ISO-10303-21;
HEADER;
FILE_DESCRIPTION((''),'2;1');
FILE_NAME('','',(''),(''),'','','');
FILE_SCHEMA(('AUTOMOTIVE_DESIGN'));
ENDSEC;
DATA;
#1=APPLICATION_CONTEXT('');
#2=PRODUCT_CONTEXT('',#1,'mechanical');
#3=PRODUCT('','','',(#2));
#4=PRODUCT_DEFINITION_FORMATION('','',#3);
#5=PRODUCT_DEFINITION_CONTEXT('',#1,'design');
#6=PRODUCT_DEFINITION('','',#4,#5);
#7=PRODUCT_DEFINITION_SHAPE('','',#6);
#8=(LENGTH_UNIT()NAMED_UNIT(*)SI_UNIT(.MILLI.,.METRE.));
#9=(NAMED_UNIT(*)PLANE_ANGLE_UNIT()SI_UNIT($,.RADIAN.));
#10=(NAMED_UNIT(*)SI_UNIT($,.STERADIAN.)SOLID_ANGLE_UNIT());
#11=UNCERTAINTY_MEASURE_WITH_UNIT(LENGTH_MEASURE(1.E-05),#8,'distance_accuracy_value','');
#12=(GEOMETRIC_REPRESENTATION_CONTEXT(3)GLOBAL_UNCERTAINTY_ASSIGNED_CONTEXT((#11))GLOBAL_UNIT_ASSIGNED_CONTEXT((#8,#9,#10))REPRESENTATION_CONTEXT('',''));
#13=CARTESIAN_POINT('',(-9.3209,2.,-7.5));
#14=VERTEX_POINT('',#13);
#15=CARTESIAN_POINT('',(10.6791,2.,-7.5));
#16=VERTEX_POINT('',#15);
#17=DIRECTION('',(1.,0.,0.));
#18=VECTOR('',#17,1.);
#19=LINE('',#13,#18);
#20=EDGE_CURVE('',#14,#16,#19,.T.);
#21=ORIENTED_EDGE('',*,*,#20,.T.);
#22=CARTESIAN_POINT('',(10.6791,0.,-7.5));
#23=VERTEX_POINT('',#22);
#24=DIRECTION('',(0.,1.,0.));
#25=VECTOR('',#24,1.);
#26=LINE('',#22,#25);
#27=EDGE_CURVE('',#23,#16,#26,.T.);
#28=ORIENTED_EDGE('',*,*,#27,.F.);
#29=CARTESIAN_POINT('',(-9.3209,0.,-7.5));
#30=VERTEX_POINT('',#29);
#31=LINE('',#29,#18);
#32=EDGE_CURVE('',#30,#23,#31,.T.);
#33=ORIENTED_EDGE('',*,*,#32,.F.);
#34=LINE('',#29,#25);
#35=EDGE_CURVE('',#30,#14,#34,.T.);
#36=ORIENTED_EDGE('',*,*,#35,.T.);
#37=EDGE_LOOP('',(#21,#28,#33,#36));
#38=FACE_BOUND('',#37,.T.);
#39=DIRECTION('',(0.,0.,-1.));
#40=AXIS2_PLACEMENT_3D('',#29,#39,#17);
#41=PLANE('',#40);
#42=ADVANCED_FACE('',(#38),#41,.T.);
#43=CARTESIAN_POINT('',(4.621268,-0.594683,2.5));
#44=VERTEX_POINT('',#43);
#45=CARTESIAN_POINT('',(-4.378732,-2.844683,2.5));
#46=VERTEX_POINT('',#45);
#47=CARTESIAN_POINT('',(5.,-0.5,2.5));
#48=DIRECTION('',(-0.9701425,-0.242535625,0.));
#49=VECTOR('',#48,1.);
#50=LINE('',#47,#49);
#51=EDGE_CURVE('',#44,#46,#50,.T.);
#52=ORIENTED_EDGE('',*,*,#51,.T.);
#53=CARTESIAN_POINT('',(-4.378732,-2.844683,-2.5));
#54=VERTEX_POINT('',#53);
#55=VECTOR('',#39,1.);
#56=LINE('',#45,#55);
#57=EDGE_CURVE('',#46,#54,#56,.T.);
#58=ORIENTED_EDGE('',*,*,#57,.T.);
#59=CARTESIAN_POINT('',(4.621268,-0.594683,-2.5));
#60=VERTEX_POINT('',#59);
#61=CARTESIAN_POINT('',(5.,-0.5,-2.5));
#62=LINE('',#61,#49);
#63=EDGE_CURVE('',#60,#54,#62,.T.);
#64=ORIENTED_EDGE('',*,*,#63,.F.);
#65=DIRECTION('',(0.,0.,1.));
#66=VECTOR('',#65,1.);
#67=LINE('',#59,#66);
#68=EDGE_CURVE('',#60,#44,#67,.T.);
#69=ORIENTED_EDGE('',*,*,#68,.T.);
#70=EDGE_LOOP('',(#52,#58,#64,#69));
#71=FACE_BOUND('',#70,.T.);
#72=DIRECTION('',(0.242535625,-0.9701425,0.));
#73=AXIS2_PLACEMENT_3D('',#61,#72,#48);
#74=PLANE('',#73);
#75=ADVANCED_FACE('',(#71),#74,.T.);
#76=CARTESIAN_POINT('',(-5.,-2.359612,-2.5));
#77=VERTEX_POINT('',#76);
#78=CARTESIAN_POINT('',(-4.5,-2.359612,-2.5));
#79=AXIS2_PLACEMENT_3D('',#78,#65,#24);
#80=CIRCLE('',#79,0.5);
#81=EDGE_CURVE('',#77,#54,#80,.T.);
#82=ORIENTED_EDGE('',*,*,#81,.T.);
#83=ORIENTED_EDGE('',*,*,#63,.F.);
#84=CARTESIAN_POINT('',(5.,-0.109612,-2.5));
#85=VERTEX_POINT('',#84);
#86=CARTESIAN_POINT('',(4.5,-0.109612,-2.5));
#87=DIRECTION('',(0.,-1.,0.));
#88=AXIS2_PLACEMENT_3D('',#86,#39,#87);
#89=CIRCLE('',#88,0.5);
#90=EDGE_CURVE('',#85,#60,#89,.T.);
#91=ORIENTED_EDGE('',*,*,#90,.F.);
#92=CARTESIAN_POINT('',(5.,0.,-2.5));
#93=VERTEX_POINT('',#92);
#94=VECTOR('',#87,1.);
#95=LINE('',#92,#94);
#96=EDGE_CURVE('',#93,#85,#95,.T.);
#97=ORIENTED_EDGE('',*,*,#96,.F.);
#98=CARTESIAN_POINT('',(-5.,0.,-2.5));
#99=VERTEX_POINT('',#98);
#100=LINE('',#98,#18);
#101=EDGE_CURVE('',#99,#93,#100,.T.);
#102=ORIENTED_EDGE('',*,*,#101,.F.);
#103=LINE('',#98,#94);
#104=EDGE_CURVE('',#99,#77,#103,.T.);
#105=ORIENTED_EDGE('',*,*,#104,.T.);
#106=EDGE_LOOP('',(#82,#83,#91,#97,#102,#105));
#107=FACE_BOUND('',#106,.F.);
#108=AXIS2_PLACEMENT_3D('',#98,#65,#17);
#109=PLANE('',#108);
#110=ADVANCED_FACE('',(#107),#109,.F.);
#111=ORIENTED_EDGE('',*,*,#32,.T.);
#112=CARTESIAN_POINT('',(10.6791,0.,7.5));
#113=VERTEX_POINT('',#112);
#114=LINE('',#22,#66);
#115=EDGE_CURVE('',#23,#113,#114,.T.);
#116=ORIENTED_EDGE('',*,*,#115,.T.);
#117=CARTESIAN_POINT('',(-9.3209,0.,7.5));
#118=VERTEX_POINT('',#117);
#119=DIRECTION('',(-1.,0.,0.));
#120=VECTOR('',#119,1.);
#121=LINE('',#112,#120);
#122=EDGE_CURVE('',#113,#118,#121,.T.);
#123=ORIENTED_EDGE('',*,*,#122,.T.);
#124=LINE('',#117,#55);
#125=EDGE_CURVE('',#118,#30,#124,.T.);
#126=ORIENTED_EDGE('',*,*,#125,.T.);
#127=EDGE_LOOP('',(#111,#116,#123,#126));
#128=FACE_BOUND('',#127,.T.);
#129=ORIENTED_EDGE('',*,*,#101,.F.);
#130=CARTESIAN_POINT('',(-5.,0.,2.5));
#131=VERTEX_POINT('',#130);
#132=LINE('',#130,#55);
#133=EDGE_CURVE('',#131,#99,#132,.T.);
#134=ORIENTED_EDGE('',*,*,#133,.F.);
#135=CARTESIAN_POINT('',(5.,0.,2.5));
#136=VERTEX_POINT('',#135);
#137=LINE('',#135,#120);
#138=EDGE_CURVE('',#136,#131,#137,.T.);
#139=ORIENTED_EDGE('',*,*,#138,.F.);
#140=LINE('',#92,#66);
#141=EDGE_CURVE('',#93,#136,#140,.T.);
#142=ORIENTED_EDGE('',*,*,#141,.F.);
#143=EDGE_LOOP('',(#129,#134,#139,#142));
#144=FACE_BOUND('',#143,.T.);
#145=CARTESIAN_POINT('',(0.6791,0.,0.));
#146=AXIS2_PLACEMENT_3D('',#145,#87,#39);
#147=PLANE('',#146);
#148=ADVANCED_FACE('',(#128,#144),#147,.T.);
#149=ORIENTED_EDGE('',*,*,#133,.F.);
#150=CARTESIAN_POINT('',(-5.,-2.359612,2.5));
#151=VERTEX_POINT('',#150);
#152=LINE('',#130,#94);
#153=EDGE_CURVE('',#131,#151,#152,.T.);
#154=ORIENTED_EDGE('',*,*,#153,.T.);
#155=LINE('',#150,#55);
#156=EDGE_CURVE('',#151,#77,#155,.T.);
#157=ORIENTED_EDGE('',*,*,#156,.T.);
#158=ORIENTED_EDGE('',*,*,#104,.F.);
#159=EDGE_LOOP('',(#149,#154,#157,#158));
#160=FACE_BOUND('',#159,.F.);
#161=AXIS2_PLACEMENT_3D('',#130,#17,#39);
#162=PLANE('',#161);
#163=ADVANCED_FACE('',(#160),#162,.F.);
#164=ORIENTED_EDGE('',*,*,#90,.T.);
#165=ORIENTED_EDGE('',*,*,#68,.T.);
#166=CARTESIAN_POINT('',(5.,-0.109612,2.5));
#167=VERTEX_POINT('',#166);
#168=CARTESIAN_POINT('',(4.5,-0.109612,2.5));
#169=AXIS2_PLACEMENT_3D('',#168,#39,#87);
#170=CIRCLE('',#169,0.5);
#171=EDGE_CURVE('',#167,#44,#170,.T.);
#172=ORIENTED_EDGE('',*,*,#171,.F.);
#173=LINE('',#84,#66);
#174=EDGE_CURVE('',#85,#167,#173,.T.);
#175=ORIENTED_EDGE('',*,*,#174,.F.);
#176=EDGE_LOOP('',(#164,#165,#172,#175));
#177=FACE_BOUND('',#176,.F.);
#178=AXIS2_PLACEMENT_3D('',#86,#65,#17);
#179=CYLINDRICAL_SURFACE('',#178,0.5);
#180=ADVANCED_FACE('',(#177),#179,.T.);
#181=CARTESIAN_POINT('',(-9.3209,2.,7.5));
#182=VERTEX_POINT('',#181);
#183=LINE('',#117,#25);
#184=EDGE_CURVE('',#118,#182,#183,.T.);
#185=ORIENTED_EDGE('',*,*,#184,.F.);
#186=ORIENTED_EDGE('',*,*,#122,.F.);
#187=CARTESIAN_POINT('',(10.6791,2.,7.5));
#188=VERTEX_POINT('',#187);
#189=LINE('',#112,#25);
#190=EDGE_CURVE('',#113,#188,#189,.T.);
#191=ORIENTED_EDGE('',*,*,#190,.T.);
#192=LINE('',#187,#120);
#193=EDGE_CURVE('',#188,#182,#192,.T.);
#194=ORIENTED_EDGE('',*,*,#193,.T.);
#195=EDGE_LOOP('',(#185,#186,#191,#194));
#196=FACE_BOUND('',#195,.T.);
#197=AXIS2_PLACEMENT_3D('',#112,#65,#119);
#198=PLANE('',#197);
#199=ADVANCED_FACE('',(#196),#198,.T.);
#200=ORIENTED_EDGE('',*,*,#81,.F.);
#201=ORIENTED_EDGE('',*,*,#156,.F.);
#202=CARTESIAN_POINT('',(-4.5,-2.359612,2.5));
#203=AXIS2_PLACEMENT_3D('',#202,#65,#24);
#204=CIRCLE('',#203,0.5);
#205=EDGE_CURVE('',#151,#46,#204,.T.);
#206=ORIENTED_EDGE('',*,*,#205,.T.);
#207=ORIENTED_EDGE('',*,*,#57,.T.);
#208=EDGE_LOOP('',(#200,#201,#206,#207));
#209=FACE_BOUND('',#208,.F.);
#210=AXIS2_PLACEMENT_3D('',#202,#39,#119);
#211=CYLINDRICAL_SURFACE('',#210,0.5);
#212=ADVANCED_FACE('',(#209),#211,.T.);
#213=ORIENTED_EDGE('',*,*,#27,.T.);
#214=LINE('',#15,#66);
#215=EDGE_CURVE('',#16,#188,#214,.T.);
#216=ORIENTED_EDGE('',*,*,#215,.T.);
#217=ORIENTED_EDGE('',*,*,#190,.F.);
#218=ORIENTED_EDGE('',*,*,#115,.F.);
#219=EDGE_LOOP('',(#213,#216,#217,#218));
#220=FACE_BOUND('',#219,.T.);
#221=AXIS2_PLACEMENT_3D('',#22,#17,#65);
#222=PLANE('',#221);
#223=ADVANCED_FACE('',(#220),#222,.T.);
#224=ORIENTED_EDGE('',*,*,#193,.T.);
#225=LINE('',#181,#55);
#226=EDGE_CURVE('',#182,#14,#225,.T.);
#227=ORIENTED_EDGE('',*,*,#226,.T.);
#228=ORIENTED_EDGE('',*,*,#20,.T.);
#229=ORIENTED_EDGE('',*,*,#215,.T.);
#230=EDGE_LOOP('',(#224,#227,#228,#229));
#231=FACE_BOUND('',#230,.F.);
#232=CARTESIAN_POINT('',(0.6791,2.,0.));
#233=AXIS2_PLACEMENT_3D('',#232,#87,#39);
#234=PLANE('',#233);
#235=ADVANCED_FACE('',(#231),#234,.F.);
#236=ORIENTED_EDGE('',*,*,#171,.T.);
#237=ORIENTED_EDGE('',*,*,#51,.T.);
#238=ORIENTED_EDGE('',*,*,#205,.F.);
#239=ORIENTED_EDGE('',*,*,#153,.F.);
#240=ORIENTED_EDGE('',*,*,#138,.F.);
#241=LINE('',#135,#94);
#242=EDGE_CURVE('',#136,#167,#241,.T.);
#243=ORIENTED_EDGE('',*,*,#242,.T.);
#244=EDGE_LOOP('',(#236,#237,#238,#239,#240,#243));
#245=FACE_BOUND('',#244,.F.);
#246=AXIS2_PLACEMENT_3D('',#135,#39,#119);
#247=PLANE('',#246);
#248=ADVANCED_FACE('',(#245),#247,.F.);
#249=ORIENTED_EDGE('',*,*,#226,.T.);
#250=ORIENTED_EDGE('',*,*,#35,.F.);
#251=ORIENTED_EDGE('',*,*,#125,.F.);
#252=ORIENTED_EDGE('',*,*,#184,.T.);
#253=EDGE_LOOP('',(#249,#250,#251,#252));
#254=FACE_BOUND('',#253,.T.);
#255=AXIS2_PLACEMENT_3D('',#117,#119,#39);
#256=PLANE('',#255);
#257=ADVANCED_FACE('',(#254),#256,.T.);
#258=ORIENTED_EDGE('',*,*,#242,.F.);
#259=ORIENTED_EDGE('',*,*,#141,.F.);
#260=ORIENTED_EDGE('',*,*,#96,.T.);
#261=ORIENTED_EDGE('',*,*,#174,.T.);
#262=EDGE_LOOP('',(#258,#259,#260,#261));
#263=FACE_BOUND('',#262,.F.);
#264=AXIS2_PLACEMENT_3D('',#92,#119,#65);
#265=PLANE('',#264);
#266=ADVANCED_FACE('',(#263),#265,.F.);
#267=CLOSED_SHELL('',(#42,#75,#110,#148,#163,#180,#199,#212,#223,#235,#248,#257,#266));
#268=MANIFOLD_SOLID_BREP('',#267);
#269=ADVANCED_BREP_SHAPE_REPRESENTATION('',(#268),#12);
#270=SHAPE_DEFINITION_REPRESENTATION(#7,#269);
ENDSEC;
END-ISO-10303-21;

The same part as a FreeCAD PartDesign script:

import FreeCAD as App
import Part
import Sketcher

V = App.Vector
Q = App.Units.Quantity


def edges_at(feature, points):
    """Names of the edges that pass closest to the given points."""
    edges = feature.Shape.Edges
    near = lambda p: min(range(len(edges)), key=lambda i: edges[i].distToShape(Part.Vertex(*p))[0])
    return sorted({f"Edge{near(p) + 1}" for p in points})

doc = App.newDocument("Part")
body = doc.addObject("PartDesign::Body", "Body")

# Sketch on XZ plane
sketch1 = doc.addObject("Sketcher::SketchObject", "Sketch")
body.addObject(sketch1)
sketch1.AttachmentSupport = (doc.XZ_Plane, [""])
sketch1.MapMode = "FlatFace"
sketch1.addGeometry(Part.LineSegment(V(11, -8, 0), V(11, 8, 0)), False)
sketch1.addGeometry(Part.LineSegment(V(11, 8, 0), V(-9, 8, 0)), False)
sketch1.addGeometry(Part.LineSegment(V(-9, 8, 0), V(-9, -8, 0)), False)
sketch1.addGeometry(Part.LineSegment(V(-9, -8, 0), V(11, -8, 0)), False)
sketch1.addConstraint(Sketcher.Constraint("Coincident", 0, 2, 1, 1))
sketch1.addConstraint(Sketcher.Constraint("Coincident", 1, 2, 2, 1))
sketch1.addConstraint(Sketcher.Constraint("Coincident", 2, 2, 3, 1))
sketch1.addConstraint(Sketcher.Constraint("Coincident", 3, 2, 0, 1))
sketch1.addConstraint(Sketcher.Constraint("Vertical", 0))
sketch1.addConstraint(Sketcher.Constraint("Horizontal", 1))
sketch1.addConstraint(Sketcher.Constraint("Vertical", 2))
sketch1.addConstraint(Sketcher.Constraint("Horizontal", 3))
sketch1.addConstraint(Sketcher.Constraint("DistanceX", 1, 2, 1, 1, Q("20 mm")))
sketch1.addConstraint(Sketcher.Constraint("DistanceY", 0, 1, 0, 2, Q("15 mm")))
sketch1.addConstraint(Sketcher.Constraint("DistanceY", -1, 1, 0, 2, Q("7.5 mm")))
sketch1.addConstraint(Sketcher.Constraint("DistanceX", -1, 1, 0, 2, Q("10.679 mm")))
pad1 = doc.addObject("PartDesign::Pad", "Pad")
body.addObject(pad1)
pad1.Profile = sketch1
pad1.Length = 2
pad1.Reversed = True

# Sketch on XZ plane
sketch2 = doc.addObject("Sketcher::SketchObject", "Sketch001")
body.addObject(sketch2)
sketch2.AttachmentSupport = (doc.XZ_Plane, [""])
sketch2.MapMode = "FlatFace"
sketch2.addGeometry(Part.LineSegment(V(5, -2, 0), V(5, 2, 0)), False)
sketch2.addGeometry(Part.LineSegment(V(5, 2, 0), V(-5, 2, 0)), False)
sketch2.addGeometry(Part.LineSegment(V(-5, 2, 0), V(-5, -2, 0)), False)
sketch2.addGeometry(Part.LineSegment(V(-5, -2, 0), V(5, -2, 0)), False)
sketch2.addConstraint(Sketcher.Constraint("Coincident", 0, 2, 1, 1))
sketch2.addConstraint(Sketcher.Constraint("Coincident", 1, 2, 2, 1))
sketch2.addConstraint(Sketcher.Constraint("Coincident", 2, 2, 3, 1))
sketch2.addConstraint(Sketcher.Constraint("Coincident", 3, 2, 0, 1))
sketch2.addConstraint(Sketcher.Constraint("Vertical", 0))
sketch2.addConstraint(Sketcher.Constraint("Horizontal", 1))
sketch2.addConstraint(Sketcher.Constraint("Vertical", 2))
sketch2.addConstraint(Sketcher.Constraint("Horizontal", 3))
sketch2.addConstraint(Sketcher.Constraint("Symmetric", 0, 2, 2, 2, -1, 1))
sketch2.addConstraint(Sketcher.Constraint("DistanceX", 1, 2, 1, 1, Q("10 mm")))
sketch2.addConstraint(Sketcher.Constraint("DistanceY", 0, 1, 0, 2, Q("5 mm")))
pad2 = doc.addObject("PartDesign::Pad", "Pad001")
body.addObject(pad2)
pad2.Profile = sketch2
pad2.Length = 3

# Sketch on XY plane
sketch3 = doc.addObject("Sketcher::SketchObject", "Sketch002")
body.addObject(sketch3)
sketch3.AttachmentSupport = (doc.XY_Plane, [""])
sketch3.MapMode = "FlatFace"
sketch3.AttachmentOffset = App.Placement(V(0, 0, -2.5), App.Rotation())
sketch3.addGeometry(Part.LineSegment(V(5, -0.5, 0), V(5, -3, 0)), False)
sketch3.addGeometry(Part.LineSegment(V(5, -3, 0), V(-5, -3, 0)), False)
sketch3.addGeometry(Part.LineSegment(V(-5, -3, 0), V(5, -0.5, 0)), False)
sketch3.addConstraint(Sketcher.Constraint("Coincident", 0, 2, 1, 1))
sketch3.addConstraint(Sketcher.Constraint("Coincident", 1, 2, 2, 1))
sketch3.addConstraint(Sketcher.Constraint("Coincident", 2, 2, 0, 1))
sketch3.addConstraint(Sketcher.Constraint("Vertical", 0))
sketch3.addConstraint(Sketcher.Constraint("Horizontal", 1))
sketch3.addConstraint(Sketcher.Constraint("DistanceX", 1, 2, 1, 1, Q("10 mm")))
sketch3.addConstraint(Sketcher.Constraint("DistanceY", 0, 2, 0, 1, Q("2.5 mm")))
sketch3.addConstraint(Sketcher.Constraint("DistanceX", -1, 1, 0, 2, Q("5 mm")))
sketch3.addConstraint(Sketcher.Constraint("DistanceY", 0, 2, -1, 1, Q("3 mm")))
pocket1 = doc.addObject("PartDesign::Pocket", "Pocket")
body.addObject(pocket1)
pocket1.Profile = sketch3
pocket1.Length = 5
pocket1.Reversed = True
doc.recompute()

fillet = doc.addObject("PartDesign::Fillet", "Fillet")
body.addObject(fillet)
fillet.Base = (pocket1, edges_at(pocket1, [(-5, -3, 0), (5, -0.5, 0)]))
fillet.Radius = 0.5

doc.recompute()
